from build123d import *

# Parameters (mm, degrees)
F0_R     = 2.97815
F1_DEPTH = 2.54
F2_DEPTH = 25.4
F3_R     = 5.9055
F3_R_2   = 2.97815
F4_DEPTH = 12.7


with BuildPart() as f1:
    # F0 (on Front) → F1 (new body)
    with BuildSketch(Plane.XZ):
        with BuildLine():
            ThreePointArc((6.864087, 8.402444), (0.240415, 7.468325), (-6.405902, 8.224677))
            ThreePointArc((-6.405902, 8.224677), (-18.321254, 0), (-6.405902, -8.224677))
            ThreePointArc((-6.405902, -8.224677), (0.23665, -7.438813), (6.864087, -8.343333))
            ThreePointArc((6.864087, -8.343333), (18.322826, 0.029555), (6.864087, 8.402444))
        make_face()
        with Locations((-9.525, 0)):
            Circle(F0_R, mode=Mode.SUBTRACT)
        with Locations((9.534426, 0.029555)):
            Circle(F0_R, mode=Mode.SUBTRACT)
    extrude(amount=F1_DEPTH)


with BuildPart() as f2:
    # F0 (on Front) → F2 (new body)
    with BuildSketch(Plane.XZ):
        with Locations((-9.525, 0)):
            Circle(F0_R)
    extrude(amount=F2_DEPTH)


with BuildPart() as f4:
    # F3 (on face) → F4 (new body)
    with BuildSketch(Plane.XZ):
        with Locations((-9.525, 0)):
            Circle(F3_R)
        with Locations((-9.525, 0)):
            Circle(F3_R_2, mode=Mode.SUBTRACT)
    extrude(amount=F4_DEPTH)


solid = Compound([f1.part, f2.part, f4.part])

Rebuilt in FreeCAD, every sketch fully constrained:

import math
import FreeCAD as App
import Part
import Sketcher
Q = App.Units.Quantity

doc = App.newDocument("Part")
params = doc.addObject("Spreadsheet::Sheet", "Params")
for row, (alias, value) in enumerate([
    ("sketch1_radius", "0.346 in"),
    ("pad1_length", "0.1 in"),
    ("pad2_length", "1 in"),
    ("sketch3_diameter", "0.465 in"),
    ("pad3_length", "0.5 in"),
], start=1):
    params.set(f"A{row}", alias)
    params.set(f"B{row}", "=" + value)
    params.setAlias(f"B{row}", alias)

body = doc.addObject("PartDesign::Body", "Body")

# Sketch on XZ plane
sketch1 = body.newObject("Sketcher::SketchObject", "Sketch")
sketch1.AttachmentSupport = (doc.getObject("XZ_Plane"), [""])
sketch1.MapMode = "FlatFace"
sketch1.addGeometry(Part.ArcOfCircle(Part.Circle(App.Vector(-0.114108, 33.932887, 0), App.Vector(0, 0, 1), 26.466937), math.radians(-103.752176), math.radians(-74.712828)), False)
sketch1.addGeometry(Part.ArcOfCircle(Part.Circle(App.Vector(-9.525, 0, 0), App.Vector(0, 0, 1), 8.796254), math.radians(69.231442), math.radians(290.768558)), False)
sketch1.addGeometry(Part.ArcOfCircle(Part.Circle(App.Vector(0, -33.904694, 0), App.Vector(0, 0, 1), 26.466939), math.radians(74.968759), math.radians(104.006627)), False)
sketch1.addGeometry(Part.ArcOfCircle(Part.Circle(App.Vector(9.534426, 0.029555, 0), App.Vector(0, 0, 1), 8.7884), math.radians(-107.68888), math.radians(107.68888)), False)
sketch1.addGeometry(Part.Circle(App.Vector(-9.525, 0, 0), App.Vector(0, 0, 1), 2.97815), False)
sketch1.addGeometry(Part.Circle(App.Vector(9.534426, 0.029555, 0), App.Vector(0, 0, 1), 2.97815), False)
sketch1.addConstraint(Sketcher.Constraint("Coincident", 0, 1, 1, 1))
sketch1.addConstraint(Sketcher.Constraint("Coincident", 1, 2, 2, 2))
sketch1.addConstraint(Sketcher.Constraint("Coincident", 2, 1, 3, 1))
sketch1.addConstraint(Sketcher.Constraint("Coincident", 3, 2, 0, 2))
sketch1.addConstraint(Sketcher.Constraint("Coincident", 4, 3, 1, 3))
sketch1.addConstraint(Sketcher.Constraint("Coincident", 5, 3, 3, 3))
sketch1.addConstraint(Sketcher.Constraint("PointOnObject", 1, 3, -1))
sketch1.addConstraint(Sketcher.Constraint("PointOnObject", 2, 3, -2))
sketch1.addConstraint(Sketcher.Constraint("Radius", 3, Q("0.346 in")))
sketch1.addConstraint(Sketcher.Constraint("Diameter", 4, Q("0.2345 in")))
sketch1.addConstraint(Sketcher.Constraint("Diameter", 5, Q("0.2345 in")))
sketch1.addConstraint(Sketcher.Constraint("DistanceX", 1, 3, -1, 1, Q("0.375 in")))
sketch1.addConstraint(Sketcher.Constraint("Radius", 2, 26.466939))
sketch1.addConstraint(Sketcher.Constraint("Radius", 0, 26.466937))
sketch1.addConstraint(Sketcher.Constraint("Radius", 1, 8.796254))
sketch1.addConstraint(Sketcher.Constraint("DistanceX", 0, 1, -1, 1, 6.405902))
sketch1.addConstraint(Sketcher.Constraint("DistanceX", 1, 2, -1, 1, 6.405902))
sketch1.addConstraint(Sketcher.Constraint("DistanceX", 0, 3, -1, 1, 0.114108))
sketch1.addConstraint(Sketcher.Constraint("DistanceY", 2, 3, 3, 3, 33.934249))
sketch1.addConstraint(Sketcher.Constraint("DistanceX", 0, 1, 3, 3, 15.940328))
sketch1.setExpression("Constraints[8]", "Params.sketch1_radius")
pad1 = body.newObject("PartDesign::Pad", "Pad")
pad1.Profile = sketch1
pad1.setExpression("Length", "Params.pad1_length")
body2 = doc.addObject("PartDesign::Body", "Body001")

# Sketch on XZ plane
sketch2 = body2.newObject("Sketcher::SketchObject", "Sketch001")
sketch2.AttachmentSupport = (doc.getObject("XZ_Plane001"), [""])
sketch2.MapMode = "FlatFace"
sketch2.addGeometry(Part.Circle(App.Vector(-9.525, 0, 0), App.Vector(0, 0, 1), 2.97815), False)
sketch2.addConstraint(Sketcher.Constraint("PointOnObject", 0, 3, -1))
sketch2.addConstraint(Sketcher.Constraint("Diameter", 0, Q("0.2345 in")))
sketch2.addConstraint(Sketcher.Constraint("DistanceX", 0, 3, -1, 1, Q("0.375 in")))
pad2 = body2.newObject("PartDesign::Pad", "Pad001")
pad2.Profile = sketch2
pad2.setExpression("Length", "Params.pad2_length")
body3 = doc.addObject("PartDesign::Body", "Body002")

# Sketch on XZ plane
sketch3 = body3.newObject("Sketcher::SketchObject", "Sketch002")
sketch3.AttachmentSupport = (doc.getObject("XZ_Plane002"), [""])
sketch3.MapMode = "FlatFace"
sketch3.addGeometry(Part.Circle(App.Vector(-9.525, 0, 0), App.Vector(0, 0, 1), 5.9055), False)
sketch3.addGeometry(Part.Circle(App.Vector(-9.525, 0, 0), App.Vector(0, 0, 1), 2.97815), False)
sketch3.addConstraint(Sketcher.Constraint("Coincident", 1, 3, 0, 3))
sketch3.addConstraint(Sketcher.Constraint("PointOnObject", 0, 3, -1))
sketch3.addConstraint(Sketcher.Constraint("Diameter", 0, Q("0.465 in")))
sketch3.addConstraint(Sketcher.Constraint("Diameter", 1, Q("0.2345 in")))
sketch3.addConstraint(Sketcher.Constraint("DistanceX", 0, 3, -1, 1, Q("0.375 in")))
sketch3.setExpression("Constraints[2]", "Params.sketch3_diameter")
pad3 = body3.newObject("PartDesign::Pad", "Pad002")
pad3.Profile = sketch3
pad3.setExpression("Length", "Params.pad3_length")

doc.recompute()
